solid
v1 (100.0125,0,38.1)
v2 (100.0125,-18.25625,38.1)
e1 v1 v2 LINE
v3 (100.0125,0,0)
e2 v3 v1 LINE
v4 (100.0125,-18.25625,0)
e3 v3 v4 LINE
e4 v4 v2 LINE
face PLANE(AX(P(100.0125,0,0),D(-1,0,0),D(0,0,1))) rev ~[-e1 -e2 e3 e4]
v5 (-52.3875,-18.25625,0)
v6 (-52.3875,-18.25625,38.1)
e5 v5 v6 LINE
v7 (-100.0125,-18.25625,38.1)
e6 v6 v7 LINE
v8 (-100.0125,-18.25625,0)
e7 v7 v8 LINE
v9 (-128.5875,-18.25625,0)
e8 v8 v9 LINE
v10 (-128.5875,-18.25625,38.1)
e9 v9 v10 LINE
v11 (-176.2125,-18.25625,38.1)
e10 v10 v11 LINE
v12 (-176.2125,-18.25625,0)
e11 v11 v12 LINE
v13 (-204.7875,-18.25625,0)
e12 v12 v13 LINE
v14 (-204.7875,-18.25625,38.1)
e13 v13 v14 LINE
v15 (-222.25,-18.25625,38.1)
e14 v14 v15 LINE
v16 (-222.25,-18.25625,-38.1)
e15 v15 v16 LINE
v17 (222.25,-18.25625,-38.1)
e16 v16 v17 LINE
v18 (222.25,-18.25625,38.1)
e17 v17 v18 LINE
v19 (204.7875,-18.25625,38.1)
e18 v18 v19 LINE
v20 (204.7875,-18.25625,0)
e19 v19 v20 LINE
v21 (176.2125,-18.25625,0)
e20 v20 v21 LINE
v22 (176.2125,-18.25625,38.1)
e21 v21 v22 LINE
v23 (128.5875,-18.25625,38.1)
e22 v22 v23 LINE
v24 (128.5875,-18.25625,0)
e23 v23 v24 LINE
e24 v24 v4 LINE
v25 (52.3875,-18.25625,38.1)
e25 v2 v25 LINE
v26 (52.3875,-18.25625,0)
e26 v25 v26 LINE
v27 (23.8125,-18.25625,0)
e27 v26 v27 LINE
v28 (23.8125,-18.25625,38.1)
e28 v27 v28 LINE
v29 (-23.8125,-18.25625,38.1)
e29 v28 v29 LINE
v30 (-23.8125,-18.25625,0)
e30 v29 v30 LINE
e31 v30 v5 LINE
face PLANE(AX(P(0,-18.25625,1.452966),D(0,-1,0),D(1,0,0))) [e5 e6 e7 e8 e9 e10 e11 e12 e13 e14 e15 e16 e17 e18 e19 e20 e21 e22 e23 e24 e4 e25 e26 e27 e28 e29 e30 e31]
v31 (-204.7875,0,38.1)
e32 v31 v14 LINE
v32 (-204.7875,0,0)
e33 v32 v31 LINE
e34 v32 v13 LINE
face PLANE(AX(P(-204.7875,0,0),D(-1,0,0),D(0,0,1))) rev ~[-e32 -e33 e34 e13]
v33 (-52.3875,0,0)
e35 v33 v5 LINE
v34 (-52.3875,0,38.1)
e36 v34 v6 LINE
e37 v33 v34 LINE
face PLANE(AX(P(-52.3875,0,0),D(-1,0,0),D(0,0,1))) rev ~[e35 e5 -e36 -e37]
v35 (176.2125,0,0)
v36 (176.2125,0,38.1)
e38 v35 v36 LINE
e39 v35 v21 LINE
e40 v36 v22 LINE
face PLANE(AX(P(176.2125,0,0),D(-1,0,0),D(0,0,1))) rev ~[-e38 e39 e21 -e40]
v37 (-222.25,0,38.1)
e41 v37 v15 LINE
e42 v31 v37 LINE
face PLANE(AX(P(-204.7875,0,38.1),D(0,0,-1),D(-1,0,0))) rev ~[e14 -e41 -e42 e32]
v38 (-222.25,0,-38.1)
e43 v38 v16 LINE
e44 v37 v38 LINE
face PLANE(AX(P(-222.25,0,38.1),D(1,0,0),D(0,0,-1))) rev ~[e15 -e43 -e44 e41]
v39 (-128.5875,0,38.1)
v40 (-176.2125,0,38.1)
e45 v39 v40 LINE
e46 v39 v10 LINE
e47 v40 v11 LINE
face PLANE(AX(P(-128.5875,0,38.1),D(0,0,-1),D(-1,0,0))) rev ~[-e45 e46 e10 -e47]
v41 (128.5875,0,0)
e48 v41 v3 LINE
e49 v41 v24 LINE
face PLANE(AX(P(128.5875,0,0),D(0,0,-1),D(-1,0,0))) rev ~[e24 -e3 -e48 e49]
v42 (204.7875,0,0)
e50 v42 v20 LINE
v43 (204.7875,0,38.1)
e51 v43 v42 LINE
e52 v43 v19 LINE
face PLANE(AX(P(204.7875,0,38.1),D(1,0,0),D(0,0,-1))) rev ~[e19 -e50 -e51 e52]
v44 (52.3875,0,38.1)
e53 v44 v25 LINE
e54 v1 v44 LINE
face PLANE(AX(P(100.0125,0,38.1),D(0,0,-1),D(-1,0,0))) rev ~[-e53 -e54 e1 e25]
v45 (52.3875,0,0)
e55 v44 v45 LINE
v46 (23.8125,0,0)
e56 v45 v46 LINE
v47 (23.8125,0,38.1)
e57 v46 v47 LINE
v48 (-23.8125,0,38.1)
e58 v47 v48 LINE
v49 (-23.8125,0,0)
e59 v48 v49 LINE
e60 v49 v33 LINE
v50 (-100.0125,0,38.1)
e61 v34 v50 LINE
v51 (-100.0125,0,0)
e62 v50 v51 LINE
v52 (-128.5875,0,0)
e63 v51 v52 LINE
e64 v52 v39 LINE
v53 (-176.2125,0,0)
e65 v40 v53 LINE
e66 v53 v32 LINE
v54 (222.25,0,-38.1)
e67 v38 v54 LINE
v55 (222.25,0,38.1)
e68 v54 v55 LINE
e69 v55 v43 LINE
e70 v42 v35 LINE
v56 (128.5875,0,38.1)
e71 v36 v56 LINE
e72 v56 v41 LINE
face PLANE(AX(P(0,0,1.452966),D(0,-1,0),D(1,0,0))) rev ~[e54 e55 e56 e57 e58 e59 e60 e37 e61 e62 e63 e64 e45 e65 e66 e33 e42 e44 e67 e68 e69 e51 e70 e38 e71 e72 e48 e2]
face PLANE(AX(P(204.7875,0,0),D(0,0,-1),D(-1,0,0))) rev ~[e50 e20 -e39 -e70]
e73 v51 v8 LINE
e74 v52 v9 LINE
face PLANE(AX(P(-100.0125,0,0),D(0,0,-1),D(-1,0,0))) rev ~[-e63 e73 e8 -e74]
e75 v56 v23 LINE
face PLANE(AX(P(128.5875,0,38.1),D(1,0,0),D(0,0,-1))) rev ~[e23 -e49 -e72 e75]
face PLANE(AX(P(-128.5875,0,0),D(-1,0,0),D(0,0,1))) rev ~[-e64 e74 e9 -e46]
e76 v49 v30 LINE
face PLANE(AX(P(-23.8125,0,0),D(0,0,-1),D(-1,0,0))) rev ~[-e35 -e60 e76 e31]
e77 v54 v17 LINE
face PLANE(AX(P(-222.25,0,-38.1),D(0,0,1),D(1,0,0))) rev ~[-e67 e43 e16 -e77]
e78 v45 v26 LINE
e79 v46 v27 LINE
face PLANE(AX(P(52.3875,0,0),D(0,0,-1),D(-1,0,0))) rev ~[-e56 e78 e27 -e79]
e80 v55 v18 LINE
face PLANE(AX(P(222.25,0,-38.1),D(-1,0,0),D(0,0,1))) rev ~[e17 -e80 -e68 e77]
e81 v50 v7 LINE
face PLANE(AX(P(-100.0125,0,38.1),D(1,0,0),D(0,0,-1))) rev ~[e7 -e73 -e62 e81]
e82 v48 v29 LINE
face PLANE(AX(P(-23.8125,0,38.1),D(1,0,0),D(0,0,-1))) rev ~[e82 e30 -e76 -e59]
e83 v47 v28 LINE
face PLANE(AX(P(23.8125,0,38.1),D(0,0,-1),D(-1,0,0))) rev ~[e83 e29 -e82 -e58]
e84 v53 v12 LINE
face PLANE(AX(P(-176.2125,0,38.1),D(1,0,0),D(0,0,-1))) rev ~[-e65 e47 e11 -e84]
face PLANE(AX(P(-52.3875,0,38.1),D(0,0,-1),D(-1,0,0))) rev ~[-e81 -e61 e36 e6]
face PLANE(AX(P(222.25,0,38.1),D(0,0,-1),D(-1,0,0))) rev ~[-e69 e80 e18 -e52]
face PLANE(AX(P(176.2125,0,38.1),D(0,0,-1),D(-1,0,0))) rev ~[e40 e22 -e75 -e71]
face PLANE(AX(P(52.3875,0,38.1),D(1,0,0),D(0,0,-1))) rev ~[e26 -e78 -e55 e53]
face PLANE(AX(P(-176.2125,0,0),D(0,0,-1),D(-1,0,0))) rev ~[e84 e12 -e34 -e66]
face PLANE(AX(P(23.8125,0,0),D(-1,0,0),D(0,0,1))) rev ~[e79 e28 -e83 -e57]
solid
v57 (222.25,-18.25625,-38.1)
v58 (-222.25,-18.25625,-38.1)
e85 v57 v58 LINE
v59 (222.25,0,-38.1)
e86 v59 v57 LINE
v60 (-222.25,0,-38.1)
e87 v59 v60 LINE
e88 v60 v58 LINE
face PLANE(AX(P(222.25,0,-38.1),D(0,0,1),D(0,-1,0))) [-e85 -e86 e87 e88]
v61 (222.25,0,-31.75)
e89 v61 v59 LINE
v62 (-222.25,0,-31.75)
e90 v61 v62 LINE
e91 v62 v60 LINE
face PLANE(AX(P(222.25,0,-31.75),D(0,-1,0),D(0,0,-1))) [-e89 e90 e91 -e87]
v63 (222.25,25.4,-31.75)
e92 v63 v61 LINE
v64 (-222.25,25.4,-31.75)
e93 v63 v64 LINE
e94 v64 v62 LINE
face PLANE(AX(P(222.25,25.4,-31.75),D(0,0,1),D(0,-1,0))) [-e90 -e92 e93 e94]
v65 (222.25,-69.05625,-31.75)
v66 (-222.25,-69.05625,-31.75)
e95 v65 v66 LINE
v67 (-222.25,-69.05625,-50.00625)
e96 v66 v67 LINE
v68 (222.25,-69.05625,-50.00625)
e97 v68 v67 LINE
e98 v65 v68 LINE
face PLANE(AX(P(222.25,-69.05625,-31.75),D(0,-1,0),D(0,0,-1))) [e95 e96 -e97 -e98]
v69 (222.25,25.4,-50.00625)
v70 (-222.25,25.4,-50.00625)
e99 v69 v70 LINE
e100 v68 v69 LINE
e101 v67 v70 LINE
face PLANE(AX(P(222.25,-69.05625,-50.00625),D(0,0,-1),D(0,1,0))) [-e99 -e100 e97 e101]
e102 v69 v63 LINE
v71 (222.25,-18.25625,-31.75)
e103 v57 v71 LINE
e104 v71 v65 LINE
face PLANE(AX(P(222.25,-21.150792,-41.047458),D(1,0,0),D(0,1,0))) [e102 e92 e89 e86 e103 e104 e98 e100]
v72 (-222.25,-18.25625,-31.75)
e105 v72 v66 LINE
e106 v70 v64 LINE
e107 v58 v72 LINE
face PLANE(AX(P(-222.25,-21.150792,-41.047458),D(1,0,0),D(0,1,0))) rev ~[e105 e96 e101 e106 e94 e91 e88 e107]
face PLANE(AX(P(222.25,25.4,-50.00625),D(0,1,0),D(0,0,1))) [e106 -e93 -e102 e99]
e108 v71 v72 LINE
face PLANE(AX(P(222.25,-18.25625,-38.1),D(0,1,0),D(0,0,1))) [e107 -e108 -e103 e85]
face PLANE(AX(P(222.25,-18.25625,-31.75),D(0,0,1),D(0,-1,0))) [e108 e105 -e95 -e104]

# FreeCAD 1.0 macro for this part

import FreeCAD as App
import Part
import Sketcher
Q = App.Units.Quantity

doc = App.newDocument("Part")
body = doc.addObject("PartDesign::Body", "Body")

sketch1 = body.newObject("Sketcher::SketchObject", "Sketch")
sketch1.AttachmentSupport = (doc.getObject("XZ_Plane"), [""])
sketch1.MapMode = "FlatFace"
sketch1.addGeometry(Part.LineSegment(App.Vector(-205, 38, 0), App.Vector(-222, 38, 0)), False)
sketch1.addGeometry(Part.LineSegment(App.Vector(-222, 38, 0), App.Vector(-222, -38, 0)), False)
sketch1.addGeometry(Part.LineSegment(App.Vector(-222, -38, 0), App.Vector(222, -38, 0)), False)
sketch1.addGeometry(Part.LineSegment(App.Vector(222, -38, 0), App.Vector(222, 38, 0)), False)
sketch1.addGeometry(Part.LineSegment(App.Vector(222, 38, 0), App.Vector(205, 38, 0)), False)
sketch1.addGeometry(Part.LineSegment(App.Vector(205, 38, 0), App.Vector(205, 0, 0)), False)
sketch1.addGeometry(Part.LineSegment(App.Vector(205, 0, 0), App.Vector(176, 0, 0)), False)
sketch1.addGeometry(Part.LineSegment(App.Vector(176, 0, 0), App.Vector(176, 38, 0)), False)
sketch1.addGeometry(Part.LineSegment(App.Vector(176, 38, 0), App.Vector(129, 38, 0)), False)
sketch1.addGeometry(Part.LineSegment(App.Vector(129, 38, 0), App.Vector(129, 0, 0)), False)
sketch1.addGeometry(Part.LineSegment(App.Vector(129, 0, 0), App.Vector(100, 0, 0)), False)
sketch1.addGeometry(Part.LineSegment(App.Vector(100, 0, 0), App.Vector(100, 38, 0)), False)
sketch1.addGeometry(Part.LineSegment(App.Vector(100, 38, 0), App.Vector(52, 38, 0)), False)
sketch1.addGeometry(Part.LineSegment(App.Vector(52, 38, 0), App.Vector(52, 0, 0)), False)
sketch1.addGeometry(Part.LineSegment(App.Vector(52, 0, 0), App.Vector(24, 0, 0)), False)
sketch1.addGeometry(Part.LineSegment(App.Vector(24, 0, 0), App.Vector(24, 38, 0)), False)
sketch1.addGeometry(Part.LineSegment(App.Vector(24, 38, 0), App.Vector(-24, 38, 0)), False)
sketch1.addGeometry(Part.LineSegment(App.Vector(-24, 38, 0), App.Vector(-24, 0, 0)), False)
sketch1.addGeometry(Part.LineSegment(App.Vector(-24, 0, 0), App.Vector(-52, 0, 0)), False)
sketch1.addGeometry(Part.LineSegment(App.Vector(-52, 0, 0), App.Vector(-52, 38, 0)), False)
sketch1.addGeometry(Part.LineSegment(App.Vector(-52, 38, 0), App.Vector(-100, 38, 0)), False)
sketch1.addGeometry(Part.LineSegment(App.Vector(-100, 38, 0), App.Vector(-100, 0, 0)), False)
sketch1.addGeometry(Part.LineSegment(App.Vector(-100, 0, 0), App.Vector(-129, 0, 0)), False)
sketch1.addGeometry(Part.LineSegment(App.Vector(-129, 0, 0), App.Vector(-129, 38, 0)), False)
sketch1.addGeometry(Part.LineSegment(App.Vector(-129, 38, 0), App.Vector(-176, 38, 0)), False)
sketch1.addGeometry(Part.LineSegment(App.Vector(-176, 38, 0), App.Vector(-176, 0, 0)), False)
sketch1.addGeometry(Part.LineSegment(App.Vector(-176, 0, 0), App.Vector(-205, 0, 0)), False)
sketch1.addGeometry(Part.LineSegment(App.Vector(-205, 0, 0), App.Vector(-205, 38, 0)), False)
sketch1.addConstraint(Sketcher.Constraint("Coincident", 0, 2, 1, 1))
sketch1.addConstraint(Sketcher.Constraint("Coincident", 1, 2, 2, 1))
sketch1.addConstraint(Sketcher.Constraint("Coincident", 2, 2, 3, 1))
sketch1.addConstraint(Sketcher.Constraint("Coincident", 3, 2, 4, 1))
sketch1.addConstraint(Sketcher.Constraint("Coincident", 4, 2, 5, 1))
sketch1.addConstraint(Sketcher.Constraint("Coincident", 5, 2, 6, 1))
sketch1.addConstraint(Sketcher.Constraint("Coincident", 6, 2, 7, 1))
sketch1.addConstraint(Sketcher.Constraint("Coincident", 7, 2, 8, 1))
sketch1.addConstraint(Sketcher.Constraint("Coincident", 8, 2, 9, 1))
sketch1.addConstraint(Sketcher.Constraint("Coincident", 9, 2, 10, 1))
sketch1.addConstraint(Sketcher.Constraint("Coincident", 10, 2, 11, 1))
sketch1.addConstraint(Sketcher.Constraint("Coincident", 11, 2, 12, 1))
sketch1.addConstraint(Sketcher.Constraint("Coincident", 12, 2, 13, 1))
sketch1.addConstraint(Sketcher.Constraint("Coincident", 13, 2, 14, 1))
sketch1.addConstraint(Sketcher.Constraint("Coincident", 14, 2, 15, 1))
sketch1.addConstraint(Sketcher.Constraint("Coincident", 15, 2, 16, 1))
sketch1.addConstraint(Sketcher.Constraint("Coincident", 16, 2, 17, 1))
sketch1.addConstraint(Sketcher.Constraint("Coincident", 17, 2, 18, 1))
sketch1.addConstraint(Sketcher.Constraint("Coincident", 18, 2, 19, 1))
sketch1.addConstraint(Sketcher.Constraint("Coincident", 19, 2, 20, 1))
sketch1.addConstraint(Sketcher.Constraint("Coincident", 20, 2, 21, 1))
sketch1.addConstraint(Sketcher.Constraint("Coincident", 21, 2, 22, 1))
sketch1.addConstraint(Sketcher.Constraint("Coincident", 22, 2, 23, 1))
sketch1.addConstraint(Sketcher.Constraint("Coincident", 23, 2, 24, 1))
sketch1.addConstraint(Sketcher.Constraint("Coincident", 24, 2, 25, 1))
sketch1.addConstraint(Sketcher.Constraint("Coincident", 25, 2, 26, 1))
sketch1.addConstraint(Sketcher.Constraint("Coincident", 26, 2, 27, 1))
sketch1.addConstraint(Sketcher.Constraint("Coincident", 27, 2, 0, 1))
sketch1.addConstraint(Sketcher.Constraint("Horizontal", 0))
sketch1.addConstraint(Sketcher.Constraint("Vertical", 1))
sketch1.addConstraint(Sketcher.Constraint("Horizontal", 2))
sketch1.addConstraint(Sketcher.Constraint("Vertical", 3))
sketch1.addConstraint(Sketcher.Constraint("Horizontal", 4))
sketch1.addConstraint(Sketcher.Constraint("Vertical", 5))
sketch1.addConstraint(Sketcher.Constraint("Horizontal", 6))
sketch1.addConstraint(Sketcher.Constraint("Vertical", 7))
sketch1.addConstraint(Sketcher.Constraint("Horizontal", 8))
sketch1.addConstraint(Sketcher.Constraint("Vertical", 9))
sketch1.addConstraint(Sketcher.Constraint("Horizontal", 10))
sketch1.addConstraint(Sketcher.Constraint("Vertical", 11))
sketch1.addConstraint(Sketcher.Constraint("Horizontal", 12))
sketch1.addConstraint(Sketcher.Constraint("Vertical", 13))
sketch1.addConstraint(Sketcher.Constraint("Horizontal", 14))
sketch1.addConstraint(Sketcher.Constraint("Vertical", 15))
sketch1.addConstraint(Sketcher.Constraint("Horizontal", 16))
sketch1.addConstraint(Sketcher.Constraint("Vertical", 17))
sketch1.addConstraint(Sketcher.Constraint("Horizontal", 18))
sketch1.addConstraint(Sketcher.Constraint("Vertical", 19))
sketch1.addConstraint(Sketcher.Constraint("Horizontal", 20))
sketch1.addConstraint(Sketcher.Constraint("Vertical", 21))
sketch1.addConstraint(Sketcher.Constraint("Horizontal", 22))
sketch1.addConstraint(Sketcher.Constraint("Vertical", 23))
sketch1.addConstraint(Sketcher.Constraint("Horizontal", 24))
sketch1.addConstraint(Sketcher.Constraint("Vertical", 25))
sketch1.addConstraint(Sketcher.Constraint("Horizontal", 26))
sketch1.addConstraint(Sketcher.Constraint("Vertical", 27))
sketch1.addConstraint(Sketcher.Constraint("Symmetric", 0, 2, 2, 2, -1, 1))
sketch1.addConstraint(Sketcher.Constraint("Symmetric", 14, 2, 17, 2, -1, 1))
sketch1.addConstraint(Sketcher.Constraint("Symmetric", 10, 2, 21, 2, -1, 1))
sketch1.addConstraint(Sketcher.Constraint("Symmetric", 6, 2, 25, 2, -1, 1))
sketch1.addConstraint(Sketcher.Constraint("Symmetric", 13, 2, 18, 2, -2))
sketch1.addConstraint(Sketcher.Constraint("Symmetric", 9, 2, 22, 2, -2))
sketch1.addConstraint(Sketcher.Constraint("Symmetric", 5, 2, 26, 2, -2))
sketch1.addConstraint(Sketcher.Constraint("Horizontal", 0, 2, 3, 2))
sketch1.addConstraint(Sketcher.Constraint("Horizontal", 4, 2, 7, 2))
sketch1.addConstraint(Sketcher.Constraint("Horizontal", 8, 2, 11, 2))
sketch1.addConstraint(Sketcher.Constraint("Horizontal", 12, 2, 15, 2))
sketch1.addConstraint(Sketcher.Constraint("Horizontal", 16, 2, 19, 2))
sketch1.addConstraint(Sketcher.Constraint("Horizontal", 20, 2, 23, 2))
sketch1.addConstraint(Sketcher.Constraint("Equal", 6, 10))
sketch1.addConstraint(Sketcher.Constraint("Equal", 8, 12))
sketch1.addConstraint(Sketcher.Constraint("Equal", 10, 14))
sketch1.addConstraint(Sketcher.Constraint("Equal", 12, 16))
sketch1.addConstraint(Sketcher.Constraint("DistanceY", 1, 2, 1, 1, Q("3 in")))
sketch1.addConstraint(Sketcher.Constraint("DistanceX", 2, 1, 2, 2, Q("17.5 in")))
sketch1.addConstraint(Sketcher.Constraint("DistanceX", 8, 2, 4, 2, Q("3 in")))
sketch1.addConstraint(Sketcher.Constraint("DistanceX", 0, 2, 0, 1, Q("0.6875 in")))
pad1 = body.newObject("PartDesign::Pad", "Pad")
pad1.Profile = sketch1
pad1.Length = Q("0.71875 in")
body2 = doc.addObject("PartDesign::Body", "Body001")

sketch2 = body2.newObject("Sketcher::SketchObject", "Sketch001")
sketch2.AttachmentSupport = (doc.getObject("YZ_Plane001"), [""])
sketch2.MapMode = "FlatFace"
sketch2.AttachmentOffset = App.Placement(App.Vector(0, 0, 8.75 * 25.4), App.Rotation())
sketch2.addGeometry(Part.LineSegment(App.Vector(25, -32, 0), App.Vector(0, -32, 0)), False)
sketch2.addGeometry(Part.LineSegment(App.Vector(0, -32, 0), App.Vector(0, -38, 0)), False)
sketch2.addGeometry(Part.LineSegment(App.Vector(0, -38, 0), App.Vector(-18, -38, 0)), False)
sketch2.addGeometry(Part.LineSegment(App.Vector(-18, -38, 0), App.Vector(-18, -32, 0)), False)
sketch2.addGeometry(Part.LineSegment(App.Vector(-18, -32, 0), App.Vector(-69, -32, 0)), False)
sketch2.addGeometry(Part.LineSegment(App.Vector(-69, -32, 0), App.Vector(-69, -50, 0)), False)
sketch2.addGeometry(Part.LineSegment(App.Vector(-69, -50, 0), App.Vector(25, -50, 0)), False)
sketch2.addGeometry(Part.LineSegment(App.Vector(25, -50, 0), App.Vector(25, -32, 0)), False)
sketch2.addConstraint(Sketcher.Constraint("Coincident", 0, 2, 1, 1))
sketch2.addConstraint(Sketcher.Constraint("Coincident", 1, 2, 2, 1))
sketch2.addConstraint(Sketcher.Constraint("Coincident", 2, 2, 3, 1))
sketch2.addConstraint(Sketcher.Constraint("Coincident", 3, 2, 4, 1))
sketch2.addConstraint(Sketcher.Constraint("Coincident", 4, 2, 5, 1))
sketch2.addConstraint(Sketcher.Constraint("Coincident", 5, 2, 6, 1))
sketch2.addConstraint(Sketcher.Constraint("Coincident", 6, 2, 7, 1))
sketch2.addConstraint(Sketcher.Constraint("Coincident", 7, 2, 0, 1))
sketch2.addConstraint(Sketcher.Constraint("Horizontal", 0))
sketch2.addConstraint(Sketcher.Constraint("Vertical", 1))
sketch2.addConstraint(Sketcher.Constraint("Horizontal", 2))
sketch2.addConstraint(Sketcher.Constraint("Vertical", 3))
sketch2.addConstraint(Sketcher.Constraint("Horizontal", 4))
sketch2.addConstraint(Sketcher.Constraint("Vertical", 5))
sketch2.addConstraint(Sketcher.Constraint("Horizontal", 6))
sketch2.addConstraint(Sketcher.Constraint("Vertical", 7))
sketch2.addConstraint(Sketcher.Constraint("PointOnObject", 0, 2, -2))
sketch2.addConstraint(Sketcher.Constraint("Horizontal", 0, 2, 3, 2))
sketch2.addConstraint(Sketcher.Constraint("Equal", 2, 5))
sketch2.addConstraint(Sketcher.Constraint("DistanceX", 0, 2, 0, 1, Q("1 in")))
sketch2.addConstraint(Sketcher.Constraint("DistanceX", 4, 2, 4, 1, Q("2 in")))
sketch2.addConstraint(Sketcher.Constraint("DistanceY", 1, 2, 1, 1, Q("0.25 in")))
sketch2.addConstraint(Sketcher.Constraint("DistanceY", 1, 2, -1, 1, Q("1.5 in")))
sketch2.addConstraint(Sketcher.Constraint("DistanceX", 2, 2, 2, 1, Q("0.71875 in")))
pad2 = body2.newObject("PartDesign::Pad", "Pad001")
pad2.Profile = sketch2
pad2.Length = Q("17.5 in")
pad2.Reversed = True

doc.recompute()
